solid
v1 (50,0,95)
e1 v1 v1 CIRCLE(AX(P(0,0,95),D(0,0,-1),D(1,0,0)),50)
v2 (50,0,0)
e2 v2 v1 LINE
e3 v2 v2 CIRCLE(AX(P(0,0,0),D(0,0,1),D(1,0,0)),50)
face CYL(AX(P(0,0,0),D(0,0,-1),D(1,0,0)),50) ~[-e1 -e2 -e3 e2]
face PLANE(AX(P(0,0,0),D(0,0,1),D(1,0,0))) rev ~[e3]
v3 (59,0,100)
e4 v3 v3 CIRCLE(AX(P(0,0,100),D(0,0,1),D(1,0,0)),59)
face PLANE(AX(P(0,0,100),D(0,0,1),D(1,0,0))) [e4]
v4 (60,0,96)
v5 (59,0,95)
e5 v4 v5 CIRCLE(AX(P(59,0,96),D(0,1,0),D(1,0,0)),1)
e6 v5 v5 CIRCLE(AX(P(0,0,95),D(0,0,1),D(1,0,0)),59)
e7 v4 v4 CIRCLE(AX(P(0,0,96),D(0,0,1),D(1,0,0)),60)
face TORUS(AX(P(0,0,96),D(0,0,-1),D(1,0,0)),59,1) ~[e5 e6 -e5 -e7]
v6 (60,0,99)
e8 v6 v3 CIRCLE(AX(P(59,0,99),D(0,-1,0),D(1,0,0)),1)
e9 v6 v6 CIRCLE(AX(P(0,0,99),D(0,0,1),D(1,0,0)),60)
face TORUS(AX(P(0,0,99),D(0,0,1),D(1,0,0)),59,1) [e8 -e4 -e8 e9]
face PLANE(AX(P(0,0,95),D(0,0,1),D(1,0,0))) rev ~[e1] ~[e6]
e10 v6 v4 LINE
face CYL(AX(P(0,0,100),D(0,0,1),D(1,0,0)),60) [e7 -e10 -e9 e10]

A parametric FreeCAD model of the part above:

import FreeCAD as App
import Part
import Sketcher
Q = App.Units.Quantity


def edges_at(feature, points):
    """Names of the edges that pass closest to the given points."""
    edges = feature.Shape.Edges
    near = lambda p: min(range(len(edges)), key=lambda i: edges[i].distToShape(Part.Vertex(*p))[0])
    return sorted({f"Edge{near(p) + 1}" for p in points})

doc = App.newDocument("Part")
params = doc.addObject("Spreadsheet::Sheet", "Params")
for row, (alias, value) in enumerate([
    ("sketch1_diameter", "100 mm"),
    ("pad1_length", "100 mm"),
    ("sketch2_diameter", "120 mm"),
    ("pad2_length", "5 mm"),
    ("fillet_radius", "1 mm"),
], start=1):
    params.set(f"A{row}", alias)
    params.set(f"B{row}", "=" + value)
    params.setAlias(f"B{row}", alias)

body = doc.addObject("PartDesign::Body", "Body")

# Sketch on XY plane
sketch1 = body.newObject("Sketcher::SketchObject", "Sketch")
sketch1.AttachmentSupport = (doc.getObject("XY_Plane"), [""])
sketch1.MapMode = "FlatFace"
sketch1.addGeometry(Part.Circle(App.Vector(0, 0, 0), App.Vector(0, 0, 1), 50), False)
sketch1.addConstraint(Sketcher.Constraint("Coincident", 0, 3, -1, 1))
sketch1.addConstraint(Sketcher.Constraint("Diameter", 0, Q("100 mm")))
sketch1.setExpression("Constraints[1]", "Params.sketch1_diameter")
pad1 = body.newObject("PartDesign::Pad", "Pad")
pad1.Profile = sketch1
pad1.setExpression("Length", "Params.pad1_length")

# Sketch on XY plane
sketch2 = body.newObject("Sketcher::SketchObject", "Sketch001")
sketch2.AttachmentSupport = (doc.getObject("XY_Plane"), [""])
sketch2.MapMode = "FlatFace"
sketch2.AttachmentOffset = App.Placement(App.Vector(0, 0, 100), App.Rotation())
sketch2.addGeometry(Part.Circle(App.Vector(0, 0, 0), App.Vector(0, 0, 1), 60), False)
sketch2.addConstraint(Sketcher.Constraint("Coincident", 0, 3, -1, 1))
sketch2.addConstraint(Sketcher.Constraint("Diameter", 0, Q("120 mm")))
sketch2.setExpression("Constraints[1]", "Params.sketch2_diameter")
pad2 = body.newObject("PartDesign::Pad", "Pad001")
pad2.Profile = sketch2
pad2.setExpression("Length", "Params.pad2_length")
pad2.Reversed = True
doc.recompute()

fillet = body.newObject("PartDesign::Fillet", "Fillet")
fillet.Base = (pad2, edges_at(pad2, [(60, 0, 97.5), (-60, 0, 100), (-60, 0, 95)]))
fillet.setExpression("Radius", "Params.fillet_radius")

doc.recompute()
